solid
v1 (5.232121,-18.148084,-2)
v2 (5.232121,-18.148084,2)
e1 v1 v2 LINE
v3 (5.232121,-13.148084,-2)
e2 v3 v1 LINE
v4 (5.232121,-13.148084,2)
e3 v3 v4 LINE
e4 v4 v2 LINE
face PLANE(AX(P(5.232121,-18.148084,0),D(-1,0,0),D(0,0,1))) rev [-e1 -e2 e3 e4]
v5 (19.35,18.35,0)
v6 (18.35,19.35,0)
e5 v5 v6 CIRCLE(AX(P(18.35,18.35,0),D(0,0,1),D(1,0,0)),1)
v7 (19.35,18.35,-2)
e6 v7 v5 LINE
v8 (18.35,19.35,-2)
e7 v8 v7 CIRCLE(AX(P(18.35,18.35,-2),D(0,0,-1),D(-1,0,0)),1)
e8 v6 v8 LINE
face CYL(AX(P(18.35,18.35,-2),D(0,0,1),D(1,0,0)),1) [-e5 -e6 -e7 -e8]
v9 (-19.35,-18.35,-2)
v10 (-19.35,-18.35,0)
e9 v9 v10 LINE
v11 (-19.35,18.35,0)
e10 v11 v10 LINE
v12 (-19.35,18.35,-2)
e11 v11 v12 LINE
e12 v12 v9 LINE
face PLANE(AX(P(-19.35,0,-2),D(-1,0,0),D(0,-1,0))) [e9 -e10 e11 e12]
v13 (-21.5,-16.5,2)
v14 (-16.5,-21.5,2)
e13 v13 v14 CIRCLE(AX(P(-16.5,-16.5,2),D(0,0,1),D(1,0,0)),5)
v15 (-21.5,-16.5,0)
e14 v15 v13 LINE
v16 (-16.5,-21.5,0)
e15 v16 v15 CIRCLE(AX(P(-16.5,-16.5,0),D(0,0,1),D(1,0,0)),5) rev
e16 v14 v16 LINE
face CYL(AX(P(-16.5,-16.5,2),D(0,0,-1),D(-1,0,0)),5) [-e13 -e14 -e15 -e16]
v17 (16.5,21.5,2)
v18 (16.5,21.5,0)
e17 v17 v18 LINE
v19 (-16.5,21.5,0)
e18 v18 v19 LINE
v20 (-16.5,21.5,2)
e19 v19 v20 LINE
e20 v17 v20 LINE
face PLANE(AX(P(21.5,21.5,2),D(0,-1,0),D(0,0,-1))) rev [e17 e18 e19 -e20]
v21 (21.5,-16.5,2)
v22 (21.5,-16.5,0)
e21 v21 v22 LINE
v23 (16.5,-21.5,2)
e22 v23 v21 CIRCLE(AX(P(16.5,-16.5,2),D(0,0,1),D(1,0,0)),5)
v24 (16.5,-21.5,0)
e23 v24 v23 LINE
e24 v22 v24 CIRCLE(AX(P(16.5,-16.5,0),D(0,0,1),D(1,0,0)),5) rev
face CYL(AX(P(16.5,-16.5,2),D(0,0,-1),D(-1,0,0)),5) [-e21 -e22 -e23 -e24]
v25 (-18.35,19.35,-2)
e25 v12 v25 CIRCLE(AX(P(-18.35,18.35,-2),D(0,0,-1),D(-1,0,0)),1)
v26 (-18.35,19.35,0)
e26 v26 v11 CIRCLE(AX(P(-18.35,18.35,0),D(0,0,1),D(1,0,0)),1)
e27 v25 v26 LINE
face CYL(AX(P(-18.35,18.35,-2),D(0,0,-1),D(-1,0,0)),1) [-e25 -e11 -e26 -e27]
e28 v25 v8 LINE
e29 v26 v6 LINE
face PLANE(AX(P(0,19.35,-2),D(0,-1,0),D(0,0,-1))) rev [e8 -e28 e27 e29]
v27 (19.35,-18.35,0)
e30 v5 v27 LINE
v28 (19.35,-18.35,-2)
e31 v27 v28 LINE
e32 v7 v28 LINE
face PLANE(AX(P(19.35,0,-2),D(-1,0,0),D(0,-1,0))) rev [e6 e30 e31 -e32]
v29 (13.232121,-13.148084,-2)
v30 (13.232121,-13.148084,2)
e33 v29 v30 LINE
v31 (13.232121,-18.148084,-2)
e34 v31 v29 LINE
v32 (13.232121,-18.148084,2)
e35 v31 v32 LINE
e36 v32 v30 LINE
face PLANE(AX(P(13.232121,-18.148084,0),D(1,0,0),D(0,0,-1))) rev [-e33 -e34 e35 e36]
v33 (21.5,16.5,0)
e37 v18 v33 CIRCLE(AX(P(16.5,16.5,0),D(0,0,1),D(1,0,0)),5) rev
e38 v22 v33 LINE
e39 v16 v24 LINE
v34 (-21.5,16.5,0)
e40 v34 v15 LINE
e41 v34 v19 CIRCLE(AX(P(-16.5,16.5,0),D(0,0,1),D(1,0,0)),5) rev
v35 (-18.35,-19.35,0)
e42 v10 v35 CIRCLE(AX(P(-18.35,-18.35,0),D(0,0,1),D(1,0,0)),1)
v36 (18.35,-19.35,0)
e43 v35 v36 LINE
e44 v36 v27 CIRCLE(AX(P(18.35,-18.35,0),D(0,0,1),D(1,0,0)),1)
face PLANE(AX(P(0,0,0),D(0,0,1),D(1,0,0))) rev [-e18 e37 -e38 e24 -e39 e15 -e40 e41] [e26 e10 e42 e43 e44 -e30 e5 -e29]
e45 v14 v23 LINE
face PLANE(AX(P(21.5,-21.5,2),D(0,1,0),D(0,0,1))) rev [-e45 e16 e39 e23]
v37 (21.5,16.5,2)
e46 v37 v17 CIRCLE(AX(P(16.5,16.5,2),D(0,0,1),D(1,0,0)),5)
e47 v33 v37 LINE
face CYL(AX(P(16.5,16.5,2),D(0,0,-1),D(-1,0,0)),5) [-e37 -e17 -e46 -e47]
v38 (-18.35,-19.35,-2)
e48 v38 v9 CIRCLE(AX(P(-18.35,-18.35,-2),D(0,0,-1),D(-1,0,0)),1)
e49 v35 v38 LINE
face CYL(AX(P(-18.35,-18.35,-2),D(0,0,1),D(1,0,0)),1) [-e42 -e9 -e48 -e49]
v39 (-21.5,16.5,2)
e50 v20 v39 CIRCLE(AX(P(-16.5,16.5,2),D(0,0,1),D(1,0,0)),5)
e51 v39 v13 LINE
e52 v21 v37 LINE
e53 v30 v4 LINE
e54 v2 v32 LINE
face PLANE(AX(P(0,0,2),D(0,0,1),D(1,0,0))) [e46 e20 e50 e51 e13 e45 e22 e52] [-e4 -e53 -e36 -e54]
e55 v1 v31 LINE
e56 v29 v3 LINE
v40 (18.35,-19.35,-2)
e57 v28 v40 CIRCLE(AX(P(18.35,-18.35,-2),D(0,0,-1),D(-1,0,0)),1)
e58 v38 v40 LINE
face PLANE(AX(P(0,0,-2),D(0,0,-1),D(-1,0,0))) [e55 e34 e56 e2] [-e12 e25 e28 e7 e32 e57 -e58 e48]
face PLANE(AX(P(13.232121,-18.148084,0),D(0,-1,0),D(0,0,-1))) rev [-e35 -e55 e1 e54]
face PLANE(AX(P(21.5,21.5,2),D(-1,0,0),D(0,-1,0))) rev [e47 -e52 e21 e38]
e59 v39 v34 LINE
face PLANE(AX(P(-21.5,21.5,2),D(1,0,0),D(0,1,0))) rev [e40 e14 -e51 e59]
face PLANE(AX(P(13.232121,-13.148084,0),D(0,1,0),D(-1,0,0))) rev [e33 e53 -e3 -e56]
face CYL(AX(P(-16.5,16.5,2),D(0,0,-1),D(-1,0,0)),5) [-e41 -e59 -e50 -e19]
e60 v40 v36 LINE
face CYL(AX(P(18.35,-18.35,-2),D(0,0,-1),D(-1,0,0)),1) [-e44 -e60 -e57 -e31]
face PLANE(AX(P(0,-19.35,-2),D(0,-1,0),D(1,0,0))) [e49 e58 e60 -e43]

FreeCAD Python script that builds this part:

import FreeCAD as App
import Part
import Sketcher

V = App.Vector
Q = App.Units.Quantity


def edges_at(feature, points):
    """Names of the edges that pass closest to the given points."""
    edges = feature.Shape.Edges
    near = lambda p: min(range(len(edges)), key=lambda i: edges[i].distToShape(Part.Vertex(*p))[0])
    return sorted({f"Edge{near(p) + 1}" for p in points})


def add_polygon(sketch, points):
    """Adds a closed chain of lines whose ends are joined by coincident constraints."""
    first, n = sketch.GeometryCount, len(points)
    for a, b in zip(points, points[1:] + points[:1]):
        sketch.addGeometry(Part.LineSegment(App.Vector(*a, 0), App.Vector(*b, 0)), False)
    for i in range(n):
        sketch.addConstraint(Sketcher.Constraint("Coincident", first + i, 2, first + (i + 1) % n, 1))

doc = App.newDocument("Part")
body = doc.addObject("PartDesign::Body", "Body")

sketch1 = body.newObject("Sketcher::SketchObject", "Sketch")
sketch1.AttachmentSupport = (doc.getObject("XY_Plane"), [""])
sketch1.MapMode = "FlatFace"
add_polygon(sketch1, [(-22, -22), (22, -22), (22, 22), (-22, 22)])
sketch1.addConstraint([
    Sketcher.Constraint("Horizontal", 0),
    Sketcher.Constraint("Vertical", 1),
    Sketcher.Constraint("Horizontal", 2),
    Sketcher.Constraint("Vertical", 3),
    Sketcher.Constraint("Symmetric", 0, 2, 2, 2, -1, 1),
    Sketcher.Constraint("Equal", 2, 1),
    Sketcher.Constraint("DistanceX", 0, 1, 0, 2, Q("43 mm")),
])
pad1 = body.newObject("PartDesign::Pad", "Pad")
pad1.Profile = sketch1
pad1.Length = 2
doc.recompute()

fillet = body.newObject("PartDesign::Fillet", "Fillet")
fillet.Base = (pad1, edges_at(pad1, [
    (-21.5, -21.5, 1),
    (-21.5, 21.5, 1),
    (21.5, 21.5, 1),
    (21.5, -21.5, 1),
]))
fillet.Radius = 5

sketch2 = body.newObject("Sketcher::SketchObject", "Sketch001")
sketch2.AttachmentSupport = (doc.getObject("XY_Plane"), [""])
sketch2.MapMode = "FlatFace"
sketch2.AttachmentOffset = App.Placement(V(0, 0, 2), App.Rotation())
add_polygon(sketch2, [(5, -13), (5, -18), (13, -18), (13, -13)])
sketch2.addConstraint([
    Sketcher.Constraint("Vertical", 0),
    Sketcher.Constraint("Horizontal", 1),
    Sketcher.Constraint("Vertical", 2),
    Sketcher.Constraint("Horizontal", 3),
    Sketcher.Constraint("DistanceX", 1, 1, 1, 2, Q("8 mm")),
    Sketcher.Constraint("DistanceY", 0, 2, 0, 1, Q("5 mm")),
    Sketcher.Constraint("DistanceX", -1, 1, 0, 2, Q("5.232121 mm")),
    Sketcher.Constraint("DistanceY", 0, 2, -1, 1, Q("18.148084 mm")),
])
pocket1 = body.newObject("PartDesign::Pocket", "Pocket")
pocket1.Profile = sketch2
pocket1.Type = "ThroughAll"

sketch3 = body.newObject("Sketcher::SketchObject", "Sketch002")
sketch3.AttachmentSupport = (doc.getObject("XY_Plane"), [""])
sketch3.MapMode = "FlatFace"
add_polygon(sketch3, [(19, -19), (-19, -19), (-19, 19), (19, 19)])
add_polygon(sketch3, [(5, -13), (5, -18), (13, -18), (13, -13)])
sketch3.addConstraint([
    Sketcher.Constraint("Horizontal", 0),
    Sketcher.Constraint("Vertical", 1),
    Sketcher.Constraint("Horizontal", 2),
    Sketcher.Constraint("Vertical", 3),
    Sketcher.Constraint("Vertical", 4),
    Sketcher.Constraint("Horizontal", 5),
    Sketcher.Constraint("Vertical", 6),
    Sketcher.Constraint("Horizontal", 7),
    Sketcher.Constraint("Symmetric", 0, 2, 2, 2, -1, 1),
    Sketcher.Constraint("Equal", 2, 1),
    Sketcher.Constraint("DistanceX", 5, 1, 5, 2, Q("8 mm")),
    Sketcher.Constraint("DistanceY", 4, 2, 4, 1, Q("5 mm")),
    Sketcher.Constraint("DistanceX", 0, 2, 0, 1, Q("38.7 mm")),
    Sketcher.Constraint("DistanceX", -1, 1, 4, 2, Q("5.232121 mm")),
    Sketcher.Constraint("DistanceY", 4, 2, -1, 1, Q("18.148084 mm")),
])
pad2 = body.newObject("PartDesign::Pad", "Pad001")
pad2.Profile = sketch3
pad2.Length = 2
pad2.Reversed = True
doc.recompute()

fillet2 = body.newObject("PartDesign::Fillet", "Fillet001")
fillet2.Base = (pad2, edges_at(pad2, [
    (-19.35, -19.35, -1),
    (-19.35, 19.35, -1),
    (19.35, 19.35, -1),
    (19.35, -19.35, -1),
]))
fillet2.Radius = 1

doc.recompute()
